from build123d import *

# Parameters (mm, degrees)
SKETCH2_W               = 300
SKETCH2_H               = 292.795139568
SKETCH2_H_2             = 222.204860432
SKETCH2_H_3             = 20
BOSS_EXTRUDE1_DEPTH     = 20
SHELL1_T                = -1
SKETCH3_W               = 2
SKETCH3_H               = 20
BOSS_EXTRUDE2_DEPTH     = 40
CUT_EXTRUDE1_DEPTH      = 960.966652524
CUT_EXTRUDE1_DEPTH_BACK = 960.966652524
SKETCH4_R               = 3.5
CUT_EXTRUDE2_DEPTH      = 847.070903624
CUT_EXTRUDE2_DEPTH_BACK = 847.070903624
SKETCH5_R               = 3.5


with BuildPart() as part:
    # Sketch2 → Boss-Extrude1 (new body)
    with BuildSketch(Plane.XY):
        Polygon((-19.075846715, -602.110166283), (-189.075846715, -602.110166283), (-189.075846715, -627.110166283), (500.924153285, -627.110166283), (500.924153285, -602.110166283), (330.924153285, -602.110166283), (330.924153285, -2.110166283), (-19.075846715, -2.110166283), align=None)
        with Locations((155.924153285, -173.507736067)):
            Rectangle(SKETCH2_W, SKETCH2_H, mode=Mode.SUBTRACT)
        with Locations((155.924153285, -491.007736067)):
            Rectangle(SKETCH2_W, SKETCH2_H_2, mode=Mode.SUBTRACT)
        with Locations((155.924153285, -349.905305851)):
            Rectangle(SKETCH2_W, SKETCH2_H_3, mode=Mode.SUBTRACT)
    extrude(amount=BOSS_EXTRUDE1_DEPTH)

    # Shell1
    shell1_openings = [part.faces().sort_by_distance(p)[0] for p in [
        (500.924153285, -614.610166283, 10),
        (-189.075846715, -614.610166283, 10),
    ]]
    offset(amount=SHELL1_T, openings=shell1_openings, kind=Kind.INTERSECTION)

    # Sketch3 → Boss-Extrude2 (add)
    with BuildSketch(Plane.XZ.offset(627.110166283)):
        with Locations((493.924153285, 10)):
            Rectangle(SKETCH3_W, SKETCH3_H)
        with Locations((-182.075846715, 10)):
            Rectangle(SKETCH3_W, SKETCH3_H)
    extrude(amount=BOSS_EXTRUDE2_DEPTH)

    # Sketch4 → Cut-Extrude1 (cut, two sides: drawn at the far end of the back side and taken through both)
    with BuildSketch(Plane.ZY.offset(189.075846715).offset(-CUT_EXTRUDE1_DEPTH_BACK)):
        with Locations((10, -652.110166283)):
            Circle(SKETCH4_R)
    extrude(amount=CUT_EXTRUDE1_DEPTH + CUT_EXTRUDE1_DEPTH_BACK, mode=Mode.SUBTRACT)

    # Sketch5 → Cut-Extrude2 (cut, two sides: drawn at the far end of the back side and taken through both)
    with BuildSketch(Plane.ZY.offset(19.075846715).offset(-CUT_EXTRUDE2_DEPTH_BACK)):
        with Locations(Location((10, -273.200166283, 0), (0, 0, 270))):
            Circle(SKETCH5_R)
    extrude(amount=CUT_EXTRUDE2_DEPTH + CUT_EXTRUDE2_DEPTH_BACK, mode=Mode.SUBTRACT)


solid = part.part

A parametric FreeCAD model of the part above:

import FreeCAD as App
import Part
import Sketcher
from FreeCAD import Vector


def faces_at(feature, points):
    """Names of the faces that lie closest to the given points."""
    faces = feature.Shape.Faces
    near = lambda p: min(range(len(faces)), key=lambda i: faces[i].distToShape(Part.Vertex(*p))[0])
    return sorted({f"Face{near(p) + 1}" for p in points})


def add_polygon(sketch, points):
    """Adds a closed chain of lines whose ends are joined by coincident constraints."""
    first, n = sketch.GeometryCount, len(points)
    for a, b in zip(points, points[1:] + points[:1]):
        sketch.addGeometry(Part.LineSegment(App.Vector(*a, 0), App.Vector(*b, 0)), False)
    for i in range(n):
        sketch.addConstraint(Sketcher.Constraint("Coincident", first + i, 2, first + (i + 1) % n, 1))

doc = App.newDocument("Part")
params = doc.addObject("Spreadsheet::Sheet", "Params")
for row, (alias, value) in enumerate([
    ("sketch1_width", "170 mm"),
    ("sketch1_width2", "690 mm"),
    ("sketch1_width3", "300 mm"),
    ("sketch1_height", "25 mm"),
    ("sketch1_height2", "600 mm"),
    ("pad1_length", "20 mm"),
    ("thickness_wall", "1 mm"),
    ("sketch2_width", "2 mm"),
    ("sketch2_height", "20 mm"),
    ("pad2_length", "40 mm"),
    ("sketch3_diameter", "7 mm"),
    ("sketch4_diameter", "7 mm"),
], start=1):
    params.set(f"A{row}", alias)
    params.set(f"B{row}", "=" + value)
    params.setAlias(f"B{row}", alias)

body = doc.addObject("PartDesign::Body", "Body")

# Sketch on XY plane
sketch1 = doc.addObject("Sketcher::SketchObject", "Sketch")
body.addObject(sketch1)
sketch1.AttachmentSupport = (doc.XY_Plane, [""])
sketch1.MapMode = "FlatFace"
add_polygon(sketch1, [(-19.075847, -602.110166), (-189.075847, -602.110166), (-189.075847, -627.110166), (500.924153, -627.110166), (500.924153, -602.110166), (330.924153, -602.110166), (330.924153, -2.110166), (-19.075847, -2.110166)])  # lines 0-7
add_polygon(sketch1, [(305.924153, -602.110166), (5.924153, -602.110166), (5.924153, -379.905306), (305.924153, -379.905306)])  # lines 8-11
add_polygon(sketch1, [(305.924153, -359.905306), (5.924153, -359.905306), (5.924153, -339.905306), (305.924153, -339.905306)])  # lines 12-15
add_polygon(sketch1, [(305.924153, -319.905306), (5.924153, -319.905306), (5.924153, -27.110166), (305.924153, -27.110166)])  # lines 16-19
sketch1.addConstraint([
    Sketcher.Constraint("Horizontal", 0),
    Sketcher.Constraint("Vertical", 1),
    Sketcher.Constraint("Horizontal", 2),
    Sketcher.Constraint("Vertical", 3),
    Sketcher.Constraint("Horizontal", 4),
    Sketcher.Constraint("Vertical", 5),
    Sketcher.Constraint("Horizontal", 6),
    Sketcher.Constraint("Vertical", 7),
    Sketcher.Constraint("Horizontal", 8),
    Sketcher.Constraint("Vertical", 9),
    Sketcher.Constraint("Horizontal", 10),
    Sketcher.Constraint("Vertical", 11),
    Sketcher.Constraint("Horizontal", 12),
    Sketcher.Constraint("Vertical", 13),
    Sketcher.Constraint("Horizontal", 14),
    Sketcher.Constraint("Vertical", 15),
    Sketcher.Constraint("Horizontal", 16),
    Sketcher.Constraint("Vertical", 17),
    Sketcher.Constraint("Horizontal", 18),
    Sketcher.Constraint("Vertical", 19),
    Sketcher.Constraint("Horizontal", 0, 2, 3, 2),
    Sketcher.Constraint("Horizontal", 7, 2, 8, 2),
    Sketcher.Constraint("Vertical", 9, 2, 12, 2),
    Sketcher.Constraint("Vertical", 11, 2, 14, 2),
    Sketcher.Constraint("Vertical", 13, 2, 16, 2),
    Sketcher.Constraint("Vertical", 15, 2, 18, 2),
    Sketcher.Constraint("Equal", 0, 4),
    Sketcher.Constraint("DistanceX", 0, 2, 0, 1, 170.0),
    Sketcher.Constraint("DistanceX", 2, 1, 2, 2, 690.0),
    Sketcher.Constraint("DistanceX", 8, 2, 8, 1, 300.0),
    Sketcher.Constraint("DistanceY", 1, 2, 1, 1, 25.0),
    Sketcher.Constraint("DistanceY", 5, 1, 5, 2, 600.0),
    Sketcher.Constraint("DistanceY", 13, 1, 13, 2, 20.0),
    Sketcher.Constraint("DistanceX", 7, 2, 8, 2, 25.0),
    Sketcher.Constraint("DistanceY", 9, 2, 12, 2, 20.0),
    Sketcher.Constraint("DistanceY", 13, 2, 16, 2, 20.0),
    Sketcher.Constraint("DistanceY", 17, 2, 6, 2, 25.0),
    Sketcher.Constraint("DistanceY", 9, 1, 9, 2, 222.20486),
    Sketcher.Constraint("DistanceX", 0, 2, -1, 1, 189.075847),
    Sketcher.Constraint("DistanceY", 0, 2, -1, 1, 602.110166),
])
sketch1.setExpression("Constraints[47]", "Params.sketch1_width")
sketch1.setExpression("Constraints[48]", "Params.sketch1_width2")
sketch1.setExpression("Constraints[49]", "Params.sketch1_width3")
sketch1.setExpression("Constraints[50]", "Params.sketch1_height")
sketch1.setExpression("Constraints[51]", "Params.sketch1_height2")
pad1 = doc.addObject("PartDesign::Pad", "Pad")
body.addObject(pad1)
pad1.Profile = sketch1
pad1.setExpression("Length", "Params.pad1_length")
doc.recompute()

thickness = doc.addObject("PartDesign::Thickness", "Thickness")
body.addObject(thickness)
thickness.Base = (pad1, faces_at(pad1, [(500.924, -614.61, 10), (-189.076, -614.61, 10)]))
thickness.setExpression("Value", "Params.thickness_wall")
thickness.Reversed = True
thickness.Join = "Intersection"

# Sketch on XZ plane
sketch2 = doc.addObject("Sketcher::SketchObject", "Sketch001")
body.addObject(sketch2)
sketch2.AttachmentSupport = (doc.XZ_Plane, [""])
sketch2.MapMode = "FlatFace"
sketch2.AttachmentOffset = App.Placement(Vector(0, 0, 627.110166), App.Rotation())
add_polygon(sketch2, [(492.924153, 20), (492.924153, 0), (494.924153, 0), (494.924153, 20)])  # lines 0-3
add_polygon(sketch2, [(-183.075847, 20), (-183.075847, 0), (-181.075847, 0), (-181.075847, 20)])  # lines 4-7
sketch2.addConstraint([
    Sketcher.Constraint("Vertical", 0),
    Sketcher.Constraint("Horizontal", 1),
    Sketcher.Constraint("Vertical", 2),
    Sketcher.Constraint("Horizontal", 3),
    Sketcher.Constraint("Vertical", 4),
    Sketcher.Constraint("Horizontal", 5),
    Sketcher.Constraint("Vertical", 6),
    Sketcher.Constraint("Horizontal", 7),
    Sketcher.Constraint("PointOnObject", 0, 2, -1),
    Sketcher.Constraint("PointOnObject", 4, 2, -1),
    Sketcher.Constraint("Horizontal", 3, 2, 6, 2),
    Sketcher.Constraint("Equal", 3, 5),
    Sketcher.Constraint("DistanceX", 1, 1, 1, 2, 2.0),
    Sketcher.Constraint("DistanceY", 0, 2, 0, 1, 20.0),
    Sketcher.Constraint("DistanceX", 4, 2, 0, 2, 676.0),
    Sketcher.Constraint("DistanceX", -1, 1, 0, 2, 492.924153),
])
sketch2.setExpression("Constraints[20]", "Params.sketch2_width")
sketch2.setExpression("Constraints[21]", "Params.sketch2_height")
pad2 = doc.addObject("PartDesign::Pad", "Pad001")
body.addObject(pad2)
pad2.Profile = sketch2
pad2.setExpression("Length", "Params.pad2_length")

# Sketch on YZ plane
sketch3 = doc.addObject("Sketcher::SketchObject", "Sketch002")
body.addObject(sketch3)
sketch3.AttachmentSupport = (doc.YZ_Plane, [""])
sketch3.MapMode = "FlatFace"
sketch3.AttachmentOffset = App.Placement(Vector(0, 0, -189.075847), App.Rotation())
sketch3.addGeometry(Part.Circle(Vector(-652.110166, 10, 0), Vector(0, 0, 1), 3.5), False)
sketch3.addConstraint([
    Sketcher.Constraint("Diameter", 0, 7.0),
    Sketcher.Constraint("DistanceY", -1, 1, 0, 3, 10.0),
    Sketcher.Constraint("DistanceX", 0, 3, -1, 1, 652.110166),
])
sketch3.setExpression("Constraints[0]", "Params.sketch3_diameter")
pocket1 = doc.addObject("PartDesign::Pocket", "Pocket")
body.addObject(pocket1)
pocket1.Profile = sketch3
pocket1.Type = "ThroughAll"
pocket1.Midplane = True

# Sketch on YZ plane
sketch4 = doc.addObject("Sketcher::SketchObject", "Sketch003")
body.addObject(sketch4)
sketch4.AttachmentSupport = (doc.YZ_Plane, [""])
sketch4.MapMode = "FlatFace"
sketch4.AttachmentOffset = App.Placement(Vector(0, 0, -19.075847), App.Rotation())
sketch4.addGeometry(Part.Circle(Vector(-273.200166, 10, 0), Vector(0, 0, 1), 3.5), False)
sketch4.addConstraint([
    Sketcher.Constraint("Diameter", 0, 7.0),
    Sketcher.Constraint("DistanceY", -1, 1, 0, 3, 10.0),
    Sketcher.Constraint("DistanceX", 0, 3, -1, 1, 273.200166),
])
sketch4.setExpression("Constraints[0]", "Params.sketch4_diameter")
pocket2 = doc.addObject("PartDesign::Pocket", "Pocket001")
body.addObject(pocket2)
pocket2.Profile = sketch4
pocket2.Type = "ThroughAll"
pocket2.Midplane = True

doc.recompute()
